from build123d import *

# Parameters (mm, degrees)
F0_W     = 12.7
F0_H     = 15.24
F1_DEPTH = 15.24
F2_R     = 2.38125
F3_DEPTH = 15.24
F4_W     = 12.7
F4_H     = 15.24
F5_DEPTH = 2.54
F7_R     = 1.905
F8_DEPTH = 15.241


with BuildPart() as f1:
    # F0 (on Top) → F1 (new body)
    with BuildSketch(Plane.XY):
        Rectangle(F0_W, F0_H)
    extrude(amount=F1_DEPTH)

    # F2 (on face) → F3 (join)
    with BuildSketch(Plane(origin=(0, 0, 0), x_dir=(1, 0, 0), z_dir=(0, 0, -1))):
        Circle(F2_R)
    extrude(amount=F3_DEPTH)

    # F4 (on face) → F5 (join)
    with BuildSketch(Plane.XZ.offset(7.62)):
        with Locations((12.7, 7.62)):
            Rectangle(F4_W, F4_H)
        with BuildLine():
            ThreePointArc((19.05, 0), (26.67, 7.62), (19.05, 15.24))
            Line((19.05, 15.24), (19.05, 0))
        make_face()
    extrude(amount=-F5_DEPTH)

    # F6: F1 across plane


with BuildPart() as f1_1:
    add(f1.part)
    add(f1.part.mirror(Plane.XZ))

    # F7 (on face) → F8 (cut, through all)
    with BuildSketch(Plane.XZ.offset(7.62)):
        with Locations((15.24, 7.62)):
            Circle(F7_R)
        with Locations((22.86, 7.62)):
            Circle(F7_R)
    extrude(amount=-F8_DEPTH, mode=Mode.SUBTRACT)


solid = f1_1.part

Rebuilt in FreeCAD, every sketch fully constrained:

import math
import FreeCAD as App
import Part
import Sketcher
Q = App.Units.Quantity

doc = App.newDocument("Part")
params = doc.addObject("Spreadsheet::Sheet", "Params")
for row, (alias, value) in enumerate([
    ("sketch1_width", "0.5 in"),
    ("sketch1_height", "0.6 in"),
    ("pad1_length", "0.6 in"),
    ("sketch2_diameter", "0.1875 in"),
    ("pad2_length", "0.6 in"),
    ("sketch3_radius", "0.3 in"),
    ("sketch3_width", "0.5 in"),
    ("pad3_length", "0.1 in"),
    ("sketch4_diameter", "0.15 in"),
], start=1):
    params.set(f"A{row}", alias)
    params.set(f"B{row}", "=" + value)
    params.setAlias(f"B{row}", alias)

body = doc.addObject("PartDesign::Body", "Body")

sketch1 = body.newObject("Sketcher::SketchObject", "Sketch")
sketch1.AttachmentSupport = (doc.getObject("XY_Plane"), [""])
sketch1.MapMode = "FlatFace"
sketch1.addGeometry([
    Part.LineSegment(App.Vector(-6, 8, 0), App.Vector(-6, -8, 0)),
    Part.LineSegment(App.Vector(-6, -8, 0), App.Vector(6, -8, 0)),
    Part.LineSegment(App.Vector(6, -8, 0), App.Vector(6, 8, 0)),
    Part.LineSegment(App.Vector(6, 8, 0), App.Vector(-6, 8, 0)),
], False)
sketch1.addConstraint([
    Sketcher.Constraint("Coincident", 0, 2, 1, 1),
    Sketcher.Constraint("Coincident", 1, 2, 2, 1),
    Sketcher.Constraint("Coincident", 2, 2, 3, 1),
    Sketcher.Constraint("Coincident", 3, 2, 0, 1),
    Sketcher.Constraint("Vertical", 0),
    Sketcher.Constraint("Horizontal", 1),
    Sketcher.Constraint("Vertical", 2),
    Sketcher.Constraint("Horizontal", 3),
    Sketcher.Constraint("Symmetric", 0, 2, 2, 2, -1, 1),
    Sketcher.Constraint("DistanceX", 1, 1, 1, 2, Q("0.5 in")),
    Sketcher.Constraint("DistanceY", 0, 2, 0, 1, Q("0.6 in")),
])
sketch1.setExpression("Constraints[9]", "Params.sketch1_width")
sketch1.setExpression("Constraints[10]", "Params.sketch1_height")
pad1 = body.newObject("PartDesign::Pad", "Pad")
pad1.Profile = sketch1
pad1.setExpression("Length", "Params.pad1_length")

sketch2 = body.newObject("Sketcher::SketchObject", "Sketch001")
sketch2.AttachmentSupport = (doc.getObject("XY_Plane"), [""])
sketch2.MapMode = "FlatFace"
sketch2.addGeometry(Part.Circle(App.Vector(0, 0, 0), App.Vector(0, 0, 1), 2.4), False)
sketch2.addConstraint([
    Sketcher.Constraint("Coincident", 0, 3, -1, 1),
    Sketcher.Constraint("Diameter", 0, Q("0.1875 in")),
])
sketch2.setExpression("Constraints[1]", "Params.sketch2_diameter")
pad2 = body.newObject("PartDesign::Pad", "Pad001")
pad2.Profile = sketch2
pad2.setExpression("Length", "Params.pad2_length")
pad2.Reversed = True

sketch3 = body.newObject("Sketcher::SketchObject", "Sketch002")
sketch3.AttachmentSupport = (doc.getObject("XZ_Plane"), [""])
sketch3.MapMode = "FlatFace"
sketch3.AttachmentOffset = App.Placement(App.Vector(0, 0, 0.3 * 25.4), App.Rotation())
sketch3.addGeometry([
    Part.LineSegment(App.Vector(6, 15, 0), App.Vector(6, 0, 0)),
    Part.LineSegment(App.Vector(6, 0, 0), App.Vector(19, 0, 0)),
    Part.ArcOfCircle(Part.Circle(App.Vector(19, 8, 0), App.Vector(0, 0, 1), 8), math.radians(-90), math.radians(90)),
    Part.LineSegment(App.Vector(19, 15, 0), App.Vector(6, 15, 0)),
], False)
sketch3.addConstraint([
    Sketcher.Constraint("Coincident", 0, 2, 1, 1),
    Sketcher.Constraint("Tangent", 1, 2, 2, 1),
    Sketcher.Constraint("Tangent", 2, 2, 3, 1),
    Sketcher.Constraint("Coincident", 3, 2, 0, 1),
    Sketcher.Constraint("Vertical", 0),
    Sketcher.Constraint("Horizontal", 1),
    Sketcher.Constraint("Horizontal", 3),
    Sketcher.Constraint("PointOnObject", 0, 2, -1),
    Sketcher.Constraint("Radius", 2, Q("0.3 in")),
    Sketcher.Constraint("DistanceX", 1, 1, 1, 2, Q("0.5 in")),
    Sketcher.Constraint("DistanceX", -1, 1, 2, 3, Q("0.75 in")),
])
sketch3.setExpression("Constraints[8]", "Params.sketch3_radius")
sketch3.setExpression("Constraints[9]", "Params.sketch3_width")
pad3 = body.newObject("PartDesign::Pad", "Pad002")
pad3.Profile = sketch3
pad3.setExpression("Length", "Params.pad3_length")
pad3.Reversed = True
body2 = doc.addObject("PartDesign::Body", "Body001")
doc.recompute()

body2.BaseFeature = body
doc.recompute()

mirroring = doc.addObject("Part::Mirroring", "Mirroring")
mirroring.Source = body
mirroring.Base = App.Vector(0, 0, 0)
mirroring.Normal = App.Vector(0, -1, 0)
body3 = doc.addObject("PartDesign::Body", "Body002")
body3.BaseFeature = mirroring
boolean = body2.newObject("PartDesign::Boolean", "Boolean")
boolean.Type = "Fuse"
boolean.addObjects([body3])
doc.recompute()

sketch4 = body2.newObject("Sketcher::SketchObject", "Sketch003")
sketch4.AttachmentSupport = (doc.getObject("XZ_Plane001"), [""])
sketch4.MapMode = "FlatFace"
sketch4.AttachmentOffset = App.Placement(App.Vector(0, 0, 0.3 * 25.4), App.Rotation())
sketch4.addGeometry([
    Part.Circle(App.Vector(15.2, 7.6, 0), App.Vector(0, 0, 1), 1.9),
    Part.Circle(App.Vector(22.9, 7.6, 0), App.Vector(0, 0, 1), 1.9),
], False)
sketch4.addConstraint([
    Sketcher.Constraint("Equal", 0, 1),
    Sketcher.Constraint("Horizontal", 0, 3, 1, 3),
    Sketcher.Constraint("Diameter", 0, Q("0.15 in")),
    Sketcher.Constraint("DistanceX", -1, 1, 0, 3, Q("0.6 in")),
    Sketcher.Constraint("DistanceY", -1, 1, 0, 3, Q("0.3 in")),
    Sketcher.Constraint("DistanceX", -1, 1, 1, 3, Q("0.9 in")),
])
sketch4.setExpression("Constraints[2]", "Params.sketch4_diameter")
pocket1 = body2.newObject("PartDesign::Pocket", "Pocket")
pocket1.Profile = sketch4
pocket1.Type = "ThroughAll"
mirroring.Visibility = False

doc.recompute()
